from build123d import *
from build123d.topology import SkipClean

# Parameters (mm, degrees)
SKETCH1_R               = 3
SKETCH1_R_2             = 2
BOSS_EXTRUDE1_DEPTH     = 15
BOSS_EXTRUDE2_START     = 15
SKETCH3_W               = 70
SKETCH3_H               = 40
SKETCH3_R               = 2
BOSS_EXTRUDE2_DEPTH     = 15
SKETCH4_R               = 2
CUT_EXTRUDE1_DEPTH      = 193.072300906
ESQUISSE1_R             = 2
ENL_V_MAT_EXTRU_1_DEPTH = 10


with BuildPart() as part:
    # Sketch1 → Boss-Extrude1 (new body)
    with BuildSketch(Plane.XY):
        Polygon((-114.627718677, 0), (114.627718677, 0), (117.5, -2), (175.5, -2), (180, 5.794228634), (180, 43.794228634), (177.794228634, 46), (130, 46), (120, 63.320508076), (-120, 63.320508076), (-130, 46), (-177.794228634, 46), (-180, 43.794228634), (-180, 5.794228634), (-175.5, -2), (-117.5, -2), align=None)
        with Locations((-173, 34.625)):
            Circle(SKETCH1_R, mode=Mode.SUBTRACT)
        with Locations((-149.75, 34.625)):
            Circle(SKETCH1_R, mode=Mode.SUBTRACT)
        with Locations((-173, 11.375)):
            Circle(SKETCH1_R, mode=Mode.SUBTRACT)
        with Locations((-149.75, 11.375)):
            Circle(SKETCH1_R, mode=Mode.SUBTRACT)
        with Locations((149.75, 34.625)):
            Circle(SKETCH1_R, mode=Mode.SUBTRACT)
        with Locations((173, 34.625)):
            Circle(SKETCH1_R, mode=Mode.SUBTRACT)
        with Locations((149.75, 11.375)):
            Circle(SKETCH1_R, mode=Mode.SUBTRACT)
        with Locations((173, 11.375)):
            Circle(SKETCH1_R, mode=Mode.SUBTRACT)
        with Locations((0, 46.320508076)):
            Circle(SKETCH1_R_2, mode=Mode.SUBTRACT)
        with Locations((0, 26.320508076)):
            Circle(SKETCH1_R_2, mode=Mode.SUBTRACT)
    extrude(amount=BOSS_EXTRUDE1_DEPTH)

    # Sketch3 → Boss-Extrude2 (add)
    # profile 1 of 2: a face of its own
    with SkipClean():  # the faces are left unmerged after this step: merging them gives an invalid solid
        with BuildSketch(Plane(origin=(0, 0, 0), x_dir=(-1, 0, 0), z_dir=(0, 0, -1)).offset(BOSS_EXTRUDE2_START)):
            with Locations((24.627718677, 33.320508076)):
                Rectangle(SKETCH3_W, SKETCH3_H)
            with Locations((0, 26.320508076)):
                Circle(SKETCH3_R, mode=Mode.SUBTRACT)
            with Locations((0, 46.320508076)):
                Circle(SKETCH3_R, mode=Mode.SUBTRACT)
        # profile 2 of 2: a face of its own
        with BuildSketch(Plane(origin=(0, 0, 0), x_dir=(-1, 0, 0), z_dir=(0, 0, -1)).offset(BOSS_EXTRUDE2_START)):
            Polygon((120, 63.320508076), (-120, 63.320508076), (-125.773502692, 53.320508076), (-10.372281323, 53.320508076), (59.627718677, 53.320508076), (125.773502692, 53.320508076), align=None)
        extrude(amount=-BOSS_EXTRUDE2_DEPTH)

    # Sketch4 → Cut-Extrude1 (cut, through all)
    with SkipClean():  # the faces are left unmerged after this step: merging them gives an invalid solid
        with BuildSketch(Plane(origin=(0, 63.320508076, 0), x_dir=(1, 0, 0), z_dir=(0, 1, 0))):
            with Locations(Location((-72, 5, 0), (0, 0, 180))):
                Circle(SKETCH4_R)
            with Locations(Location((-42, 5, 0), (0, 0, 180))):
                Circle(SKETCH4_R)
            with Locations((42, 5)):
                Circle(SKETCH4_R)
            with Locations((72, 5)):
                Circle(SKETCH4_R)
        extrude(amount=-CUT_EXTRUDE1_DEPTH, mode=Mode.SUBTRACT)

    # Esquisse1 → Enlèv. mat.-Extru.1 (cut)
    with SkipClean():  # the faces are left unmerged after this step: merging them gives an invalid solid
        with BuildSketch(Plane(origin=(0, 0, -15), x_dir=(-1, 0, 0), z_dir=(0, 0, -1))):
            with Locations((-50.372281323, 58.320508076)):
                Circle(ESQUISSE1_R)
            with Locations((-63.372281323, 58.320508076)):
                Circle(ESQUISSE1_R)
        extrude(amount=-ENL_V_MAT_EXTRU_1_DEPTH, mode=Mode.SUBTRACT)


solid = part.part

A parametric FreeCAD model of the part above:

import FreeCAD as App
import Part
import Sketcher
Q = App.Units.Quantity

doc = App.newDocument("Part")
body = doc.addObject("PartDesign::Body", "Body")

sketch1 = body.newObject("Sketcher::SketchObject", "Sketch")
sketch1.AttachmentSupport = (doc.getObject("XY_Plane"), [""])
sketch1.MapMode = "FlatFace"
sketch1.addGeometry([
    Part.LineSegment(App.Vector(-114.627719, 0, 0), App.Vector(114.627719, 0, 0)),
    Part.LineSegment(App.Vector(114.627719, 0, 0), App.Vector(117.5, -2, 0)),
    Part.LineSegment(App.Vector(117.5, -2, 0), App.Vector(175.5, -2, 0)),
    Part.LineSegment(App.Vector(175.5, -2, 0), App.Vector(180, 5.794229, 0)),
    Part.LineSegment(App.Vector(180, 5.794229, 0), App.Vector(180, 43.794229, 0)),
    Part.LineSegment(App.Vector(180, 43.794229, 0), App.Vector(177.794229, 46, 0)),
    Part.LineSegment(App.Vector(177.794229, 46, 0), App.Vector(130, 46, 0)),
    Part.LineSegment(App.Vector(130, 46, 0), App.Vector(120, 63.320508, 0)),
    Part.LineSegment(App.Vector(120, 63.320508, 0), App.Vector(-120, 63.320508, 0)),
    Part.LineSegment(App.Vector(-120, 63.320508, 0), App.Vector(-130, 46, 0)),
    Part.LineSegment(App.Vector(-130, 46, 0), App.Vector(-177.794229, 46, 0)),
    Part.LineSegment(App.Vector(-177.794229, 46, 0), App.Vector(-180, 43.794229, 0)),
    Part.LineSegment(App.Vector(-180, 43.794229, 0), App.Vector(-180, 5.794229, 0)),
    Part.LineSegment(App.Vector(-180, 5.794229, 0), App.Vector(-175.5, -2, 0)),
    Part.LineSegment(App.Vector(-175.5, -2, 0), App.Vector(-117.5, -2, 0)),
    Part.LineSegment(App.Vector(-117.5, -2, 0), App.Vector(-114.627719, 0, 0)),
    Part.Circle(App.Vector(-173, 11.375, 0), App.Vector(0, 0, 1), 3),
    Part.Circle(App.Vector(-149.75, 11.375, 0), App.Vector(0, 0, 1), 3),
    Part.Circle(App.Vector(149.75, 11.375, 0), App.Vector(0, 0, 1), 3),
    Part.Circle(App.Vector(173, 11.375, 0), App.Vector(0, 0, 1), 3),
    Part.Circle(App.Vector(0, 26.320508, 0), App.Vector(0, 0, 1), 2),
    Part.Circle(App.Vector(-173, 34.625, 0), App.Vector(0, 0, 1), 3),
    Part.Circle(App.Vector(-149.75, 34.625, 0), App.Vector(0, 0, 1), 3),
    Part.Circle(App.Vector(149.75, 34.625, 0), App.Vector(0, 0, 1), 3),
    Part.Circle(App.Vector(173, 34.625, 0), App.Vector(0, 0, 1), 3),
    Part.Circle(App.Vector(0, 46.320508, 0), App.Vector(0, 0, 1), 2),
], False)
sketch1.addConstraint([
    Sketcher.Constraint("Coincident", 0, 2, 1, 1),
    Sketcher.Constraint("Coincident", 1, 2, 2, 1),
    Sketcher.Constraint("Coincident", 2, 2, 3, 1),
    Sketcher.Constraint("Coincident", 3, 2, 4, 1),
    Sketcher.Constraint("Coincident", 4, 2, 5, 1),
    Sketcher.Constraint("Coincident", 5, 2, 6, 1),
    Sketcher.Constraint("Coincident", 6, 2, 7, 1),
    Sketcher.Constraint("Coincident", 7, 2, 8, 1),
    Sketcher.Constraint("Coincident", 8, 2, 9, 1),
    Sketcher.Constraint("Coincident", 9, 2, 10, 1),
    Sketcher.Constraint("Coincident", 10, 2, 11, 1),
    Sketcher.Constraint("Coincident", 11, 2, 12, 1),
    Sketcher.Constraint("Coincident", 12, 2, 13, 1),
    Sketcher.Constraint("Coincident", 13, 2, 14, 1),
    Sketcher.Constraint("Coincident", 14, 2, 15, 1),
    Sketcher.Constraint("Coincident", 15, 2, 0, 1),
    Sketcher.Constraint("Horizontal", 0),
    Sketcher.Constraint("Horizontal", 2),
    Sketcher.Constraint("Vertical", 4),
    Sketcher.Constraint("Horizontal", 6),
    Sketcher.Constraint("Horizontal", 8),
    Sketcher.Constraint("Horizontal", 10),
    Sketcher.Constraint("Vertical", 12),
    Sketcher.Constraint("Horizontal", 14),
    Sketcher.Constraint("Equal", 16, 17),
    Sketcher.Constraint("Equal", 17, 18),
    Sketcher.Constraint("Equal", 18, 19),
    Sketcher.Constraint("Equal", 19, 21),
    Sketcher.Constraint("Equal", 21, 22),
    Sketcher.Constraint("Equal", 22, 23),
    Sketcher.Constraint("Equal", 23, 24),
    Sketcher.Constraint("Equal", 20, 25),
    Sketcher.Constraint("Symmetric", 0, 2, 15, 2, -1, 1),
    Sketcher.Constraint("Symmetric", 17, 3, 18, 3, -2),
    Sketcher.Constraint("Symmetric", 16, 3, 19, 3, -2),
    Sketcher.Constraint("Symmetric", 22, 3, 23, 3, -2),
    Sketcher.Constraint("Symmetric", 21, 3, 24, 3, -2),
    Sketcher.Constraint("Symmetric", 6, 2, 9, 2, -2),
    Sketcher.Constraint("Symmetric", 4, 2, 11, 2, -2),
    Sketcher.Constraint("Symmetric", 2, 2, 13, 2, -2),
    Sketcher.Constraint("PointOnObject", 20, 3, -2),
    Sketcher.Constraint("PointOnObject", 25, 3, -2),
    Sketcher.Constraint("Parallel", 3, 9),
    Sketcher.Constraint("Perpendicular", 5, 11),
    Sketcher.Constraint("Parallel", 7, 13),
    Sketcher.Constraint("Horizontal", 16, 3, 17, 3),
    Sketcher.Constraint("Horizontal", 21, 3, 22, 3),
    Sketcher.Constraint("Horizontal", 3, 2, 12, 2),
    Sketcher.Constraint("Vertical", 16, 3, 21, 3),
    Sketcher.Constraint("Vertical", 17, 3, 22, 3),
    Sketcher.Constraint("Equal", 6, 10),
    Sketcher.Constraint("Equal", 2, 14),
    Sketcher.Constraint("Diameter", 16, 6.0),
    Sketcher.Constraint("Diameter", 20, 4.0),
    Sketcher.Constraint("DistanceX", 2, 1, 2, 2, 58.0),
    Sketcher.Constraint("DistanceX", 8, 2, 8, 1, 240.0),
    Sketcher.Constraint("DistanceY", 4, 1, 4, 2, 38.0),
    Sketcher.Constraint("Angle", 3, Q("60 deg")),
    Sketcher.Constraint("Distance", 3, 9.0),
    Sketcher.Constraint("Distance", 7, 20.0),
    Sketcher.Constraint("DistanceX", 16, 3, -1, 1, 173.0),
    Sketcher.Constraint("DistanceY", 1, 2, -1, 1, 2.0),
    Sketcher.Constraint("DistanceX", -1, 1, 3, 2, 180.0),
    Sketcher.Constraint("DistanceY", -1, 1, 5, 2, 46.0),
    Sketcher.Constraint("DistanceY", 20, 3, 25, 3, 20.0),
    Sketcher.Constraint("DistanceY", 25, 3, 8, 2, 17.0),
    Sketcher.Constraint("Distance", 1, 3.5),
    Sketcher.Constraint("DistanceX", 17, 3, 18, 3, 299.5),
    Sketcher.Constraint("DistanceY", 16, 3, 21, 3, 23.25),
    Sketcher.Constraint("DistanceY", -1, 1, 16, 3, 11.375),
])
pad1 = body.newObject("PartDesign::Pad", "Pad")
pad1.Profile = sketch1
pad1.Length = 15

sketch2 = body.newObject("Sketcher::SketchObject", "Sketch001")
sketch2.AttachmentSupport = (doc.getObject("XY_Plane"), [""])
sketch2.MapMode = "FlatFace"
sketch2.AttachmentOffset = App.Placement(App.Vector(0, 0, -15), App.Rotation())
sketch2.addGeometry([
    Part.LineSegment(App.Vector(10.372281, 53.320508, 0), App.Vector(10.372281, 13.320508, 0)),
    Part.LineSegment(App.Vector(10.372281, 13.320508, 0), App.Vector(-59.627719, 13.320508, 0)),
    Part.LineSegment(App.Vector(-59.627719, 13.320508, 0), App.Vector(-59.627719, 53.320508, 0)),
    Part.LineSegment(App.Vector(-59.627719, 53.320508, 0), App.Vector(-125.773503, 53.320508, 0)),
    Part.LineSegment(App.Vector(-125.773503, 53.320508, 0), App.Vector(-120, 63.320508, 0)),
    Part.LineSegment(App.Vector(-120, 63.320508, 0), App.Vector(120, 63.320508, 0)),
    Part.LineSegment(App.Vector(120, 63.320508, 0), App.Vector(125.773503, 53.320508, 0)),
    Part.LineSegment(App.Vector(125.773503, 53.320508, 0), App.Vector(10.372281, 53.320508, 0)),
    Part.Circle(App.Vector(0, 26.320508, 0), App.Vector(0, 0, 1), 2),
    Part.Circle(App.Vector(0, 46.320508, 0), App.Vector(0, 0, 1), 2),
], False)
sketch2.addConstraint([
    Sketcher.Constraint("Coincident", 0, 2, 1, 1),
    Sketcher.Constraint("Coincident", 1, 2, 2, 1),
    Sketcher.Constraint("Coincident", 2, 2, 3, 1),
    Sketcher.Constraint("Coincident", 3, 2, 4, 1),
    Sketcher.Constraint("Coincident", 4, 2, 5, 1),
    Sketcher.Constraint("Coincident", 5, 2, 6, 1),
    Sketcher.Constraint("Coincident", 6, 2, 7, 1),
    Sketcher.Constraint("Coincident", 7, 2, 0, 1),
    Sketcher.Constraint("Vertical", 0),
    Sketcher.Constraint("Horizontal", 1),
    Sketcher.Constraint("Vertical", 2),
    Sketcher.Constraint("Horizontal", 3),
    Sketcher.Constraint("Horizontal", 5),
    Sketcher.Constraint("Horizontal", 7),
    Sketcher.Constraint("Equal", 8, 9),
    Sketcher.Constraint("Symmetric", 3, 2, 6, 2, -2),
    Sketcher.Constraint("PointOnObject", 8, 3, -2),
    Sketcher.Constraint("PointOnObject", 9, 3, -2),
    Sketcher.Constraint("Equal", 4, 6),
    Sketcher.Constraint("Diameter", 8, 4.0),
    Sketcher.Constraint("DistanceX", 1, 2, 1, 1, 70.0),
    Sketcher.Constraint("DistanceX", 5, 1, 5, 2, 240.0),
    Sketcher.Constraint("DistanceY", 0, 2, 0, 1, 40.0),
    Sketcher.Constraint("Angle", 4, Q("60 deg")),
    Sketcher.Constraint("DistanceY", 8, 3, 9, 3, 20.0),
    Sketcher.Constraint("DistanceY", 0, 2, 8, 3, 13.0),
    Sketcher.Constraint("DistanceY", 3, 2, 4, 2, 10.0),
    Sketcher.Constraint("DistanceX", 7, 2, 7, 1, 115.401221),
    Sketcher.Constraint("DistanceY", -1, 1, 8, 3, 26.320508),
])
pad2 = body.newObject("PartDesign::Pad", "Pad001")
pad2.Profile = sketch2
pad2.Length = 15

sketch3 = body.newObject("Sketcher::SketchObject", "Sketch002")
sketch3.AttachmentSupport = (doc.getObject("XZ_Plane"), [""])
sketch3.MapMode = "FlatFace"
sketch3.AttachmentOffset = App.Placement(App.Vector(0, 0, -63.320508), App.Rotation())
sketch3.addGeometry([
    Part.Circle(App.Vector(-72, -5, 0), App.Vector(0, 0, 1), 2),
    Part.Circle(App.Vector(-42, -5, 0), App.Vector(0, 0, 1), 2),
    Part.Circle(App.Vector(42, -5, 0), App.Vector(0, 0, 1), 2),
    Part.Circle(App.Vector(72, -5, 0), App.Vector(0, 0, 1), 2),
], False)
sketch3.addConstraint([
    Sketcher.Constraint("Equal", 0, 1),
    Sketcher.Constraint("Equal", 1, 2),
    Sketcher.Constraint("Equal", 2, 3),
    Sketcher.Constraint("Symmetric", 1, 3, 2, 3, -2),
    Sketcher.Constraint("Symmetric", 0, 3, 3, 3, -2),
    Sketcher.Constraint("Horizontal", 0, 3, 1, 3),
    Sketcher.Constraint("Diameter", 0, 4.0),
    Sketcher.Constraint("DistanceX", 0, 3, -1, 1, 72.0),
    Sketcher.Constraint("DistanceY", 0, 3, -1, 1, 5.0),
    Sketcher.Constraint("DistanceX", 1, 3, -1, 1, 42.0),
])
pocket1 = body.newObject("PartDesign::Pocket", "Pocket")
pocket1.Profile = sketch3
pocket1.Type = "ThroughAll"
pocket1.Reversed = True

sketch4 = body.newObject("Sketcher::SketchObject", "Sketch003")
sketch4.AttachmentSupport = (doc.getObject("XY_Plane"), [""])
sketch4.MapMode = "FlatFace"
sketch4.AttachmentOffset = App.Placement(App.Vector(0, 0, -15), App.Rotation())
sketch4.addGeometry([
    Part.Circle(App.Vector(50.372281, 58.320508, 0), App.Vector(0, 0, 1), 2),
    Part.Circle(App.Vector(63.372281, 58.320508, 0), App.Vector(0, 0, 1), 2),
], False)
sketch4.addConstraint([
    Sketcher.Constraint("Equal", 0, 1),
    Sketcher.Constraint("Horizontal", 0, 3, 1, 3),
    Sketcher.Constraint("Diameter", 0, 4.0),
    Sketcher.Constraint("DistanceX", 0, 3, 1, 3, 13.0),
    Sketcher.Constraint("DistanceX", -1, 1, 0, 3, 50.372281),
    Sketcher.Constraint("DistanceY", -1, 1, 0, 3, 58.320508),
])
pocket2 = body.newObject("PartDesign::Pocket", "Pocket001")
pocket2.Profile = sketch4
pocket2.Length = 10
pocket2.Reversed = True

doc.recompute()
